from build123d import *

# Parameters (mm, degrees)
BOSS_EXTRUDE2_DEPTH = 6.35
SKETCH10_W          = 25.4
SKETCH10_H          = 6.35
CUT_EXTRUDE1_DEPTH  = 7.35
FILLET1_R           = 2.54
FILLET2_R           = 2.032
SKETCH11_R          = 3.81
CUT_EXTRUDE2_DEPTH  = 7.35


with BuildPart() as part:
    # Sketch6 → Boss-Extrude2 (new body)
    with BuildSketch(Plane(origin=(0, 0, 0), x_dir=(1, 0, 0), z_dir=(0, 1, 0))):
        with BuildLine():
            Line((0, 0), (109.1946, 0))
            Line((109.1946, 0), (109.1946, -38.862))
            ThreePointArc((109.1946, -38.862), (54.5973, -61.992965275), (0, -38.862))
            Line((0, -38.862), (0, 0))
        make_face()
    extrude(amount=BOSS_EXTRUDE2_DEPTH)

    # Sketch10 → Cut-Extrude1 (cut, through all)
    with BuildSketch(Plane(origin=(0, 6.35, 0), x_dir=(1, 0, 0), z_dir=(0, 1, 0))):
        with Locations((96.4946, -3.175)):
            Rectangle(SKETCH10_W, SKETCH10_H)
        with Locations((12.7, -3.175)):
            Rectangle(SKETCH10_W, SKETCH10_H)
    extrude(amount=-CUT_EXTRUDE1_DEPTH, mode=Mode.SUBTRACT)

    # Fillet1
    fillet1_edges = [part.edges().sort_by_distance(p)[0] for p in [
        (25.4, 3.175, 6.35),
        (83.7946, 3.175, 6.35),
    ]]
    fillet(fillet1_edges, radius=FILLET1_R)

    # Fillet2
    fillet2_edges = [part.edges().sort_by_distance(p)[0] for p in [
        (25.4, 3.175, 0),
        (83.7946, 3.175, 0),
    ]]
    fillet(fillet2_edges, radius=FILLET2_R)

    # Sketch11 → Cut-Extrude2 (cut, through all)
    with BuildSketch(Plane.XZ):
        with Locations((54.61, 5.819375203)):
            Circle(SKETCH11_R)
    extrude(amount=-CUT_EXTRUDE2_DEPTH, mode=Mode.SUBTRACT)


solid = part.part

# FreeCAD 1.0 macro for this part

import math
import FreeCAD as App
import Part
import Sketcher
Q = App.Units.Quantity


def edges_at(feature, points):
    """Names of the edges that pass closest to the given points."""
    edges = feature.Shape.Edges
    near = lambda p: min(range(len(edges)), key=lambda i: edges[i].distToShape(Part.Vertex(*p))[0])
    return sorted({f"Edge{near(p) + 1}" for p in points})

doc = App.newDocument("Part")
body = doc.addObject("PartDesign::Body", "Body")

sketch1 = body.newObject("Sketcher::SketchObject", "Sketch")
sketch1.AttachmentSupport = (doc.getObject("XZ_Plane"), [""])
sketch1.MapMode = "FlatFace"
sketch1.addGeometry(Part.LineSegment(App.Vector(109, 0, 0), App.Vector(0, 0, 0)), False)
sketch1.addGeometry(Part.LineSegment(App.Vector(0, 0, 0), App.Vector(0, 39, 0)), False)
sketch1.addGeometry(Part.ArcOfCircle(Part.Circle(App.Vector(55, -14, 0), App.Vector(0, 0, 1), 76), math.radians(44), math.radians(136)), False)
sketch1.addGeometry(Part.LineSegment(App.Vector(109, 39, 0), App.Vector(109, 0, 0)), False)
sketch1.addConstraint(Sketcher.Constraint("Coincident", 0, 2, 1, 1))
sketch1.addConstraint(Sketcher.Constraint("Coincident", 1, 2, 2, 2))
sketch1.addConstraint(Sketcher.Constraint("Coincident", 2, 1, 3, 1))
sketch1.addConstraint(Sketcher.Constraint("Coincident", 3, 2, 0, 1))
sketch1.addConstraint(Sketcher.Constraint("Horizontal", 0))
sketch1.addConstraint(Sketcher.Constraint("Vertical", 1))
sketch1.addConstraint(Sketcher.Constraint("Vertical", 3))
sketch1.addConstraint(Sketcher.Constraint("Coincident", 0, 2, -1, 1))
sketch1.addConstraint(Sketcher.Constraint("Horizontal", 1, 2, 2, 1))
sketch1.addConstraint(Sketcher.Constraint("DistanceY", 1, 1, 1, 2, Q("1.53 in")))
sketch1.addConstraint(Sketcher.Constraint("DistanceX", 0, 2, 0, 1, Q("4.299 in")))
sketch1.addConstraint(Sketcher.Constraint("Radius", 2, 76.0))
pad1 = body.newObject("PartDesign::Pad", "Pad")
pad1.Profile = sketch1
pad1.Length = Q("0.25 in")
pad1.Reversed = True

sketch2 = body.newObject("Sketcher::SketchObject", "Sketch001")
sketch2.AttachmentSupport = (doc.getObject("XZ_Plane"), [""])
sketch2.MapMode = "FlatFace"
sketch2.AttachmentOffset = App.Placement(App.Vector(0, 0, -0.25 * 25.4), App.Rotation())
sketch2.addGeometry(Part.LineSegment(App.Vector(84, 0, 0), App.Vector(84, 6, 0)), False)
sketch2.addGeometry(Part.LineSegment(App.Vector(84, 6, 0), App.Vector(109, 6, 0)), False)
sketch2.addGeometry(Part.LineSegment(App.Vector(109, 6, 0), App.Vector(109, 0, 0)), False)
sketch2.addGeometry(Part.LineSegment(App.Vector(109, 0, 0), App.Vector(84, 0, 0)), False)
sketch2.addGeometry(Part.LineSegment(App.Vector(0, 0, 0), App.Vector(0, 6, 0)), False)
sketch2.addGeometry(Part.LineSegment(App.Vector(0, 6, 0), App.Vector(25, 6, 0)), False)
sketch2.addGeometry(Part.LineSegment(App.Vector(25, 6, 0), App.Vector(25, 0, 0)), False)
sketch2.addGeometry(Part.LineSegment(App.Vector(25, 0, 0), App.Vector(0, 0, 0)), False)
sketch2.addConstraint(Sketcher.Constraint("Coincident", 0, 2, 1, 1))
sketch2.addConstraint(Sketcher.Constraint("Coincident", 1, 2, 2, 1))
sketch2.addConstraint(Sketcher.Constraint("Coincident", 2, 2, 3, 1))
sketch2.addConstraint(Sketcher.Constraint("Coincident", 3, 2, 0, 1))
sketch2.addConstraint(Sketcher.Constraint("Coincident", 4, 2, 5, 1))
sketch2.addConstraint(Sketcher.Constraint("Coincident", 5, 2, 6, 1))
sketch2.addConstraint(Sketcher.Constraint("Coincident", 6, 2, 7, 1))
sketch2.addConstraint(Sketcher.Constraint("Coincident", 7, 2, 4, 1))
sketch2.addConstraint(Sketcher.Constraint("Vertical", 0))
sketch2.addConstraint(Sketcher.Constraint("Horizontal", 1))
sketch2.addConstraint(Sketcher.Constraint("Vertical", 2))
sketch2.addConstraint(Sketcher.Constraint("Horizontal", 3))
sketch2.addConstraint(Sketcher.Constraint("Vertical", 4))
sketch2.addConstraint(Sketcher.Constraint("Horizontal", 5))
sketch2.addConstraint(Sketcher.Constraint("Vertical", 6))
sketch2.addConstraint(Sketcher.Constraint("Horizontal", 7))
sketch2.addConstraint(Sketcher.Constraint("Coincident", 7, 2, -1, 1))
sketch2.addConstraint(Sketcher.Constraint("PointOnObject", 2, 2, -1))
sketch2.addConstraint(Sketcher.Constraint("Horizontal", 1, 2, 4, 2))
sketch2.addConstraint(Sketcher.Constraint("Equal", 3, 5))
sketch2.addConstraint(Sketcher.Constraint("DistanceX", 1, 1, 1, 2, Q("1 in")))
sketch2.addConstraint(Sketcher.Constraint("DistanceY", 0, 1, 0, 2, Q("0.25 in")))
sketch2.addConstraint(Sketcher.Constraint("DistanceX", -1, 1, 0, 2, Q("3.299 in")))
pocket1 = body.newObject("PartDesign::Pocket", "Pocket")
pocket1.Profile = sketch2
pocket1.Type = "ThroughAll"
pocket1.Reversed = True
doc.recompute()

fillet = body.newObject("PartDesign::Fillet", "Fillet")
fillet.Base = (pocket1, edges_at(pocket1, [(25.4, 3.175, 6.35), (83.795, 3.175, 6.35)]))
fillet.Radius = Q("0.1 in")
doc.recompute()

fillet2 = body.newObject("PartDesign::Fillet", "Fillet001")
fillet2.Base = (fillet, edges_at(fillet, [(25.4, 3.175, 0), (83.795, 3.175, 0)]))
fillet2.Radius = Q("0.08 in")

sketch3 = body.newObject("Sketcher::SketchObject", "Sketch002")
sketch3.AttachmentSupport = (doc.getObject("XZ_Plane"), [""])
sketch3.MapMode = "FlatFace"
sketch3.addGeometry(Part.Circle(App.Vector(54.6, 5.8, 0), App.Vector(0, 0, 1), 3.8), False)
sketch3.addConstraint(Sketcher.Constraint("Diameter", 0, Q("0.3 in")))
sketch3.addConstraint(Sketcher.Constraint("DistanceX", -1, 1, 0, 3, Q("2.15 in")))
sketch3.addConstraint(Sketcher.Constraint("DistanceY", -1, 1, 0, 3, 5.819375))
pocket2 = body.newObject("PartDesign::Pocket", "Pocket001")
pocket2.Profile = sketch3
pocket2.Type = "ThroughAll"

doc.recompute()
